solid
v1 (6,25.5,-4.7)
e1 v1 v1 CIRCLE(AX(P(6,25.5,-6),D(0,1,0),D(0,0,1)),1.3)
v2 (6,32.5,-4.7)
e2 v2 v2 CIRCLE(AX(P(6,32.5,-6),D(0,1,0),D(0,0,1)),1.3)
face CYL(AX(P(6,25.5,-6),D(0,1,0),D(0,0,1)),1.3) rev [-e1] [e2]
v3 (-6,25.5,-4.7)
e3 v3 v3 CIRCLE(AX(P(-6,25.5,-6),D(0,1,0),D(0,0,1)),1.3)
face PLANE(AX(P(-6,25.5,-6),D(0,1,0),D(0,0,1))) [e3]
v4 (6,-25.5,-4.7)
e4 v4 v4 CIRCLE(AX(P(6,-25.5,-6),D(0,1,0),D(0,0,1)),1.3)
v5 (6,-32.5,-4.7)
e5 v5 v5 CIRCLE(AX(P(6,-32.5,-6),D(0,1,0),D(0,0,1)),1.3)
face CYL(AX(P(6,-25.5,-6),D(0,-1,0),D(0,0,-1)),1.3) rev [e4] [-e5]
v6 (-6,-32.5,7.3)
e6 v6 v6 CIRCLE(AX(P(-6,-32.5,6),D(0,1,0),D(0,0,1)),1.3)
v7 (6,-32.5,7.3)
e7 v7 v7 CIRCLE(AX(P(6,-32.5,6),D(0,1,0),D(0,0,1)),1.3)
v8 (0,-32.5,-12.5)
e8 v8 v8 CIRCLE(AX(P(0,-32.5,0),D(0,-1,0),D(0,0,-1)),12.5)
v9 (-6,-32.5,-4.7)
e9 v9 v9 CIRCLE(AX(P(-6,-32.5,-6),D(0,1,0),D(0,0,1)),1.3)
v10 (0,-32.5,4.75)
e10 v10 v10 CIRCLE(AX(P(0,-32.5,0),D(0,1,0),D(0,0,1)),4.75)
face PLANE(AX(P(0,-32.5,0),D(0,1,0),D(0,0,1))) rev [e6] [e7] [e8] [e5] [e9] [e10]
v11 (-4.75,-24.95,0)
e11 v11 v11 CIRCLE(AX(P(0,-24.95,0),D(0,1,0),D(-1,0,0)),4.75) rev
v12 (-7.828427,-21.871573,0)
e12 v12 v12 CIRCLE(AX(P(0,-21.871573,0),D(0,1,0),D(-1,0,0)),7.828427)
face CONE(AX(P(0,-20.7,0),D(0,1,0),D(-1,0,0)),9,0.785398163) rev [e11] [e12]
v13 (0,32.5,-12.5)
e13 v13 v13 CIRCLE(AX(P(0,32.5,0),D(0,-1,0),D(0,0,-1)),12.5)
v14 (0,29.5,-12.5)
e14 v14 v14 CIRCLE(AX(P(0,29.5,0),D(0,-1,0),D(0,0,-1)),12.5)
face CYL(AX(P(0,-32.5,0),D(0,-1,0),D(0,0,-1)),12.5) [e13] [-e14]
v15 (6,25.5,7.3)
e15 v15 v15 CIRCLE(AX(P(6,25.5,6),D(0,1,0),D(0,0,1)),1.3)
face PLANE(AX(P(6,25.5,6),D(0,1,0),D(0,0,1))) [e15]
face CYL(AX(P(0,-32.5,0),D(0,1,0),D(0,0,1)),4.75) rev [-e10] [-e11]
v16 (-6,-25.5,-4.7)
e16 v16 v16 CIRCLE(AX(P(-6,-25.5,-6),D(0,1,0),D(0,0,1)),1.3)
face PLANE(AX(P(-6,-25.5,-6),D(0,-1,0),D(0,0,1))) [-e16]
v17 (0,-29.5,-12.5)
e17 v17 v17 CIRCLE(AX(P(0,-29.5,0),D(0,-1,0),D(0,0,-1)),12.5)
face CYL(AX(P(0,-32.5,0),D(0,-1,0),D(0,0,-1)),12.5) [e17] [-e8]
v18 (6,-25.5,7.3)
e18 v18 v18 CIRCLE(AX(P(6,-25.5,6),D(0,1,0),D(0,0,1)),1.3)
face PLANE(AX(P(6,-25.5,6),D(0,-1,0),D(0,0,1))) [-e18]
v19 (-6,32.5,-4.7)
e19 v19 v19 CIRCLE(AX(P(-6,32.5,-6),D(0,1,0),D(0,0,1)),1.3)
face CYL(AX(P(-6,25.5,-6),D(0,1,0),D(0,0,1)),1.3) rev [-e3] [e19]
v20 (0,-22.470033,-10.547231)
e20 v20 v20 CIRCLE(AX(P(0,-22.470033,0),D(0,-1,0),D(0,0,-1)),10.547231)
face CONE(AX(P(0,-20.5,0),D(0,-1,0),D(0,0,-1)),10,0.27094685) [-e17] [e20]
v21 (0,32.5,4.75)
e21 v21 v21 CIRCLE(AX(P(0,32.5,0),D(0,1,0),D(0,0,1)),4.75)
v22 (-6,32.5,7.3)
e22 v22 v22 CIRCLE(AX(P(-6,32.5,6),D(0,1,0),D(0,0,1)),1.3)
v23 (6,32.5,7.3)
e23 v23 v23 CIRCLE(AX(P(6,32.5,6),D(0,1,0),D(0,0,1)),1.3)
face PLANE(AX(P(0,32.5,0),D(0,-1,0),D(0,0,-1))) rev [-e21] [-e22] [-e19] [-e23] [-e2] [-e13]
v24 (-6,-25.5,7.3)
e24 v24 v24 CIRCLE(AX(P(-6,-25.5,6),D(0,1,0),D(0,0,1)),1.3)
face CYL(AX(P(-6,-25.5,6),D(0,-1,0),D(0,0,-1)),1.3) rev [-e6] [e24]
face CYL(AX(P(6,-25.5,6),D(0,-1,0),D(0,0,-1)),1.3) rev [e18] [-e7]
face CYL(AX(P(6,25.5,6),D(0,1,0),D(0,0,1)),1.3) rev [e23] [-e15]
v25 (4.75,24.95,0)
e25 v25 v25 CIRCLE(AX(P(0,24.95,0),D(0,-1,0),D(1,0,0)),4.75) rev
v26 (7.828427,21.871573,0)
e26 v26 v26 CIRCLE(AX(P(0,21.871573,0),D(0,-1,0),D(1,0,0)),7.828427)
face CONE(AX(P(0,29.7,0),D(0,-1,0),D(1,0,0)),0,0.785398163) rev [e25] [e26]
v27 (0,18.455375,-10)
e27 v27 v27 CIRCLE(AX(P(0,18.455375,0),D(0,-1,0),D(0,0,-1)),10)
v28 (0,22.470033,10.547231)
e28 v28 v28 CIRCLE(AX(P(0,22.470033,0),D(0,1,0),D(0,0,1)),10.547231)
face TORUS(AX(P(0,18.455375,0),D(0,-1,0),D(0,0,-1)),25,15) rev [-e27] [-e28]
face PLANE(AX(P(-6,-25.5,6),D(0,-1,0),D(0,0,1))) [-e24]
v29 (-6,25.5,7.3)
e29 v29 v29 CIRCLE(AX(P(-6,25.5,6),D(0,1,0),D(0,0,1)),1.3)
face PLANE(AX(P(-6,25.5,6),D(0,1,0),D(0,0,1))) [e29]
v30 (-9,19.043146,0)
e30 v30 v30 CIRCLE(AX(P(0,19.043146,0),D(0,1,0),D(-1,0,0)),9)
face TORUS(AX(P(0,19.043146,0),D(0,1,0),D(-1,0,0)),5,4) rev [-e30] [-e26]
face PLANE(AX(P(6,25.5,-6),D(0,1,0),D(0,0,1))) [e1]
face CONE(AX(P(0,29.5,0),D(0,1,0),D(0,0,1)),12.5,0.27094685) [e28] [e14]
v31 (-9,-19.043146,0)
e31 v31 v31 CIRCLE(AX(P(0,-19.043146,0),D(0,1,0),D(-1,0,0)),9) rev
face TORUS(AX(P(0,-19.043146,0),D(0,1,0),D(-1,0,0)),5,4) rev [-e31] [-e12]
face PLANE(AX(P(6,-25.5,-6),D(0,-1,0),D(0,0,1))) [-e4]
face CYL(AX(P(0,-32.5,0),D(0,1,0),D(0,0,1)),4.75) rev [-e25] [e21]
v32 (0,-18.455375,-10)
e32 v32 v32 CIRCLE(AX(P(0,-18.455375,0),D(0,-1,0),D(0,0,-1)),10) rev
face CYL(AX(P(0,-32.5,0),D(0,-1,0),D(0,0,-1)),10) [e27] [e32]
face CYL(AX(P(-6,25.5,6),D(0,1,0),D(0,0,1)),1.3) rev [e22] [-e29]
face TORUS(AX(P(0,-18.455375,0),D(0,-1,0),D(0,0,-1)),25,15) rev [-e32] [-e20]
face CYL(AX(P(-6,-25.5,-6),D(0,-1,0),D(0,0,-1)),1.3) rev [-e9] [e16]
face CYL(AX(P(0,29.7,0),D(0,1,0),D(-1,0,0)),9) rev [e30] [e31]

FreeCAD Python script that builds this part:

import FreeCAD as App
import Part
import Sketcher
from FreeCAD import Vector
Q = App.Units.Quantity


def edges_at(feature, points):
    """Names of the edges that pass closest to the given points."""
    edges = feature.Shape.Edges
    near = lambda p: min(range(len(edges)), key=lambda i: edges[i].distToShape(Part.Vertex(*p))[0])
    return sorted({f"Edge{near(p) + 1}" for p in points})


def add_polygon(sketch, points):
    """Adds a closed chain of lines whose ends are joined by coincident constraints."""
    first, n = sketch.GeometryCount, len(points)
    for a, b in zip(points, points[1:] + points[:1]):
        sketch.addGeometry(Part.LineSegment(App.Vector(*a, 0), App.Vector(*b, 0)), False)
    for i in range(n):
        sketch.addConstraint(Sketcher.Constraint("Coincident", first + i, 2, first + (i + 1) % n, 1))

doc = App.newDocument("Part")
params = doc.addObject("Spreadsheet::Sheet", "Params")
for row, (alias, value) in enumerate([
    ("sketch1_height", "65 mm"),
    ("sketch1_height2", "3 mm"),
    ("sketch1_height3", "41 mm"),
    ("sketch1_width", "12.5 mm"),
    ("revolution_angle", "360 deg"),
    ("sketch2_diameter", "2.6 mm"),
    ("pocket1_length", "7 mm"),
    ("sketch3_height", "41.4 mm"),
    ("sketch3_height2", "59.4 mm"),
    ("groove_angle", "360 deg"),
    ("sketch4_diameter", "9.5 mm"),
    ("fillet_radius", "15 mm"),
    ("fillet2_radius", "4 mm"),
], start=1):
    params.set(f"A{row}", alias)
    params.set(f"B{row}", "=" + value)
    params.setAlias(f"B{row}", alias)

body = doc.addObject("PartDesign::Body", "Body")

# Sketch on XY plane
sketch1 = body.newObject("Sketcher::SketchObject", "Sketch")
sketch1.AttachmentSupport = (doc.getObject("XY_Plane"), [""])
sketch1.MapMode = "FlatFace"
add_polygon(sketch1, [(0, -32.5), (0, 32.5), (-12.5, 32.5), (-12.5, 29.5), (-10, 20.5), (-10, -20.5), (-12.5, -29.5), (-12.5, -32.5)])  # lines 0-7
sketch1.addConstraint(Sketcher.Constraint("Vertical", 0))
sketch1.addConstraint(Sketcher.Constraint("Horizontal", 1))
sketch1.addConstraint(Sketcher.Constraint("Vertical", 2))
sketch1.addConstraint(Sketcher.Constraint("Vertical", 4))
sketch1.addConstraint(Sketcher.Constraint("Vertical", 6))
sketch1.addConstraint(Sketcher.Constraint("Horizontal", 7))
sketch1.addConstraint(Sketcher.Constraint("Symmetric", 0, 2, 7, 2, -1, 1))
sketch1.addConstraint(Sketcher.Constraint("Symmetric", 2, 2, 5, 2, -1))
sketch1.addConstraint(Sketcher.Constraint("Equal", 3, 5))
sketch1.addConstraint(Sketcher.Constraint("DistanceY", 0, 1, 0, 2, Q("65 mm")))
sketch1.addConstraint(Sketcher.Constraint("DistanceY", 2, 2, 2, 1, Q("3 mm")))
sketch1.addConstraint(Sketcher.Constraint("DistanceY", 4, 2, 4, 1, Q("41 mm")))
sketch1.addConstraint(Sketcher.Constraint("DistanceX", 1, 2, 1, 1, Q("12.5 mm")))
sketch1.addConstraint(Sketcher.Constraint("DistanceX", 3, 2, -1, 1, Q("10 mm")))
sketch1.setExpression("Constraints[17]", "Params.sketch1_height")
sketch1.setExpression("Constraints[18]", "Params.sketch1_height2")
sketch1.setExpression("Constraints[19]", "Params.sketch1_height3")
sketch1.setExpression("Constraints[20]", "Params.sketch1_width")
revolution = body.newObject("PartDesign::Revolution", "Revolution")
revolution.Profile = sketch1
revolution.ReferenceAxis = (sketch1, ["V_Axis"])
revolution.setExpression("Angle", "Params.revolution_angle")

# Sketch on XZ plane
sketch2 = body.newObject("Sketcher::SketchObject", "Sketch001")
sketch2.AttachmentSupport = (doc.getObject("XZ_Plane"), [""])
sketch2.MapMode = "FlatFace"
sketch2.AttachmentOffset = App.Placement(Vector(0, 0, -32.5), App.Rotation())
sketch2.addGeometry(Part.Circle(Vector(-6, -6, 0), Vector(0, 0, 1), 1.3), False)
sketch2.addGeometry(Part.Circle(Vector(6, -6, 0), Vector(0, 0, 1), 1.3), False)
sketch2.addGeometry(Part.Circle(Vector(-6, 6, 0), Vector(0, 0, 1), 1.3), False)
sketch2.addGeometry(Part.Circle(Vector(6, 6, 0), Vector(0, 0, 1), 1.3), False)
sketch2.addConstraint(Sketcher.Constraint("Equal", 0, 1))
sketch2.addConstraint(Sketcher.Constraint("Equal", 1, 2))
sketch2.addConstraint(Sketcher.Constraint("Equal", 2, 3))
sketch2.addConstraint(Sketcher.Constraint("Symmetric", 1, 3, 2, 3, -1, 1))
sketch2.addConstraint(Sketcher.Constraint("Symmetric", 0, 3, 3, 3, -1, 1))
sketch2.addConstraint(Sketcher.Constraint("Symmetric", 0, 3, 1, 3, -2))
sketch2.addConstraint(Sketcher.Constraint("Diameter", 0, Q("2.6 mm")))
sketch2.addConstraint(Sketcher.Constraint("DistanceX", 0, 3, -1, 1, Q("6 mm")))
sketch2.addConstraint(Sketcher.Constraint("DistanceY", 0, 3, -1, 1, Q("6 mm")))
sketch2.setExpression("Constraints[6]", "Params.sketch2_diameter")
pocket1 = body.newObject("PartDesign::Pocket", "Pocket")
pocket1.Profile = sketch2
pocket1.setExpression("Length", "Params.pocket1_length")
pocket1.Reversed = True
doc.recompute()

mirrored = body.newObject("PartDesign::Mirrored", "Mirrored")
mirrored.Originals = [pocket1]
mirrored.MirrorPlane = (doc.getObject("XZ_Plane"), [""])
body.Tip = mirrored

# Sketch on XY plane
sketch3 = body.newObject("Sketcher::SketchObject", "Sketch002")
sketch3.AttachmentSupport = (doc.getObject("XY_Plane"), [""])
sketch3.MapMode = "FlatFace"
add_polygon(sketch3, [(0, 29.7), (-9, 20.7), (-9, -20.7), (0, -29.7)])  # lines 0-3
sketch3.addConstraint(Sketcher.Constraint("Vertical", 1))
sketch3.addConstraint(Sketcher.Constraint("Vertical", 3))
sketch3.addConstraint(Sketcher.Constraint("Symmetric", 2, 2, 3, 2, -1, 1))
sketch3.addConstraint(Sketcher.Constraint("Perpendicular", 0, 2))
sketch3.addConstraint(Sketcher.Constraint("Equal", 0, 2))
sketch3.addConstraint(Sketcher.Constraint("DistanceY", 1, 2, 1, 1, Q("41.4 mm")))
sketch3.addConstraint(Sketcher.Constraint("DistanceY", 3, 1, 3, 2, Q("59.4 mm")))
sketch3.setExpression("Constraints[9]", "Params.sketch3_height")
sketch3.setExpression("Constraints[10]", "Params.sketch3_height2")
groove = body.newObject("PartDesign::Groove", "Groove")
groove.Profile = sketch3
groove.ReferenceAxis = (sketch3, ["V_Axis"])
groove.setExpression("Angle", "Params.groove_angle")

# Sketch on XZ plane
sketch4 = body.newObject("Sketcher::SketchObject", "Sketch003")
sketch4.AttachmentSupport = (doc.getObject("XZ_Plane"), [""])
sketch4.MapMode = "FlatFace"
sketch4.AttachmentOffset = App.Placement(Vector(0, 0, -32.5), App.Rotation())
sketch4.addGeometry(Part.Circle(Vector(0, 0, 0), Vector(0, 0, 1), 4.75), False)
sketch4.addConstraint(Sketcher.Constraint("Coincident", 0, 3, -1, 1))
sketch4.addConstraint(Sketcher.Constraint("Diameter", 0, Q("9.5 mm")))
sketch4.setExpression("Constraints[1]", "Params.sketch4_diameter")
pocket2 = body.newObject("PartDesign::Pocket", "Pocket001")
pocket2.Profile = sketch4
pocket2.Type = "ThroughAll"
pocket2.Reversed = True
doc.recompute()

fillet = body.newObject("PartDesign::Fillet", "Fillet")
fillet.Base = (pocket2, edges_at(pocket2, [(0, -20.5, 10), (0, 20.5, 10)]))
fillet.setExpression("Radius", "Params.fillet_radius")
doc.recompute()

fillet2 = body.newObject("PartDesign::Fillet", "Fillet001")
fillet2.Base = (fillet, edges_at(fillet, [(9, -20.7, 0), (9, 20.7, 0)]))
fillet2.setExpression("Radius", "Params.fillet2_radius")

doc.recompute()
